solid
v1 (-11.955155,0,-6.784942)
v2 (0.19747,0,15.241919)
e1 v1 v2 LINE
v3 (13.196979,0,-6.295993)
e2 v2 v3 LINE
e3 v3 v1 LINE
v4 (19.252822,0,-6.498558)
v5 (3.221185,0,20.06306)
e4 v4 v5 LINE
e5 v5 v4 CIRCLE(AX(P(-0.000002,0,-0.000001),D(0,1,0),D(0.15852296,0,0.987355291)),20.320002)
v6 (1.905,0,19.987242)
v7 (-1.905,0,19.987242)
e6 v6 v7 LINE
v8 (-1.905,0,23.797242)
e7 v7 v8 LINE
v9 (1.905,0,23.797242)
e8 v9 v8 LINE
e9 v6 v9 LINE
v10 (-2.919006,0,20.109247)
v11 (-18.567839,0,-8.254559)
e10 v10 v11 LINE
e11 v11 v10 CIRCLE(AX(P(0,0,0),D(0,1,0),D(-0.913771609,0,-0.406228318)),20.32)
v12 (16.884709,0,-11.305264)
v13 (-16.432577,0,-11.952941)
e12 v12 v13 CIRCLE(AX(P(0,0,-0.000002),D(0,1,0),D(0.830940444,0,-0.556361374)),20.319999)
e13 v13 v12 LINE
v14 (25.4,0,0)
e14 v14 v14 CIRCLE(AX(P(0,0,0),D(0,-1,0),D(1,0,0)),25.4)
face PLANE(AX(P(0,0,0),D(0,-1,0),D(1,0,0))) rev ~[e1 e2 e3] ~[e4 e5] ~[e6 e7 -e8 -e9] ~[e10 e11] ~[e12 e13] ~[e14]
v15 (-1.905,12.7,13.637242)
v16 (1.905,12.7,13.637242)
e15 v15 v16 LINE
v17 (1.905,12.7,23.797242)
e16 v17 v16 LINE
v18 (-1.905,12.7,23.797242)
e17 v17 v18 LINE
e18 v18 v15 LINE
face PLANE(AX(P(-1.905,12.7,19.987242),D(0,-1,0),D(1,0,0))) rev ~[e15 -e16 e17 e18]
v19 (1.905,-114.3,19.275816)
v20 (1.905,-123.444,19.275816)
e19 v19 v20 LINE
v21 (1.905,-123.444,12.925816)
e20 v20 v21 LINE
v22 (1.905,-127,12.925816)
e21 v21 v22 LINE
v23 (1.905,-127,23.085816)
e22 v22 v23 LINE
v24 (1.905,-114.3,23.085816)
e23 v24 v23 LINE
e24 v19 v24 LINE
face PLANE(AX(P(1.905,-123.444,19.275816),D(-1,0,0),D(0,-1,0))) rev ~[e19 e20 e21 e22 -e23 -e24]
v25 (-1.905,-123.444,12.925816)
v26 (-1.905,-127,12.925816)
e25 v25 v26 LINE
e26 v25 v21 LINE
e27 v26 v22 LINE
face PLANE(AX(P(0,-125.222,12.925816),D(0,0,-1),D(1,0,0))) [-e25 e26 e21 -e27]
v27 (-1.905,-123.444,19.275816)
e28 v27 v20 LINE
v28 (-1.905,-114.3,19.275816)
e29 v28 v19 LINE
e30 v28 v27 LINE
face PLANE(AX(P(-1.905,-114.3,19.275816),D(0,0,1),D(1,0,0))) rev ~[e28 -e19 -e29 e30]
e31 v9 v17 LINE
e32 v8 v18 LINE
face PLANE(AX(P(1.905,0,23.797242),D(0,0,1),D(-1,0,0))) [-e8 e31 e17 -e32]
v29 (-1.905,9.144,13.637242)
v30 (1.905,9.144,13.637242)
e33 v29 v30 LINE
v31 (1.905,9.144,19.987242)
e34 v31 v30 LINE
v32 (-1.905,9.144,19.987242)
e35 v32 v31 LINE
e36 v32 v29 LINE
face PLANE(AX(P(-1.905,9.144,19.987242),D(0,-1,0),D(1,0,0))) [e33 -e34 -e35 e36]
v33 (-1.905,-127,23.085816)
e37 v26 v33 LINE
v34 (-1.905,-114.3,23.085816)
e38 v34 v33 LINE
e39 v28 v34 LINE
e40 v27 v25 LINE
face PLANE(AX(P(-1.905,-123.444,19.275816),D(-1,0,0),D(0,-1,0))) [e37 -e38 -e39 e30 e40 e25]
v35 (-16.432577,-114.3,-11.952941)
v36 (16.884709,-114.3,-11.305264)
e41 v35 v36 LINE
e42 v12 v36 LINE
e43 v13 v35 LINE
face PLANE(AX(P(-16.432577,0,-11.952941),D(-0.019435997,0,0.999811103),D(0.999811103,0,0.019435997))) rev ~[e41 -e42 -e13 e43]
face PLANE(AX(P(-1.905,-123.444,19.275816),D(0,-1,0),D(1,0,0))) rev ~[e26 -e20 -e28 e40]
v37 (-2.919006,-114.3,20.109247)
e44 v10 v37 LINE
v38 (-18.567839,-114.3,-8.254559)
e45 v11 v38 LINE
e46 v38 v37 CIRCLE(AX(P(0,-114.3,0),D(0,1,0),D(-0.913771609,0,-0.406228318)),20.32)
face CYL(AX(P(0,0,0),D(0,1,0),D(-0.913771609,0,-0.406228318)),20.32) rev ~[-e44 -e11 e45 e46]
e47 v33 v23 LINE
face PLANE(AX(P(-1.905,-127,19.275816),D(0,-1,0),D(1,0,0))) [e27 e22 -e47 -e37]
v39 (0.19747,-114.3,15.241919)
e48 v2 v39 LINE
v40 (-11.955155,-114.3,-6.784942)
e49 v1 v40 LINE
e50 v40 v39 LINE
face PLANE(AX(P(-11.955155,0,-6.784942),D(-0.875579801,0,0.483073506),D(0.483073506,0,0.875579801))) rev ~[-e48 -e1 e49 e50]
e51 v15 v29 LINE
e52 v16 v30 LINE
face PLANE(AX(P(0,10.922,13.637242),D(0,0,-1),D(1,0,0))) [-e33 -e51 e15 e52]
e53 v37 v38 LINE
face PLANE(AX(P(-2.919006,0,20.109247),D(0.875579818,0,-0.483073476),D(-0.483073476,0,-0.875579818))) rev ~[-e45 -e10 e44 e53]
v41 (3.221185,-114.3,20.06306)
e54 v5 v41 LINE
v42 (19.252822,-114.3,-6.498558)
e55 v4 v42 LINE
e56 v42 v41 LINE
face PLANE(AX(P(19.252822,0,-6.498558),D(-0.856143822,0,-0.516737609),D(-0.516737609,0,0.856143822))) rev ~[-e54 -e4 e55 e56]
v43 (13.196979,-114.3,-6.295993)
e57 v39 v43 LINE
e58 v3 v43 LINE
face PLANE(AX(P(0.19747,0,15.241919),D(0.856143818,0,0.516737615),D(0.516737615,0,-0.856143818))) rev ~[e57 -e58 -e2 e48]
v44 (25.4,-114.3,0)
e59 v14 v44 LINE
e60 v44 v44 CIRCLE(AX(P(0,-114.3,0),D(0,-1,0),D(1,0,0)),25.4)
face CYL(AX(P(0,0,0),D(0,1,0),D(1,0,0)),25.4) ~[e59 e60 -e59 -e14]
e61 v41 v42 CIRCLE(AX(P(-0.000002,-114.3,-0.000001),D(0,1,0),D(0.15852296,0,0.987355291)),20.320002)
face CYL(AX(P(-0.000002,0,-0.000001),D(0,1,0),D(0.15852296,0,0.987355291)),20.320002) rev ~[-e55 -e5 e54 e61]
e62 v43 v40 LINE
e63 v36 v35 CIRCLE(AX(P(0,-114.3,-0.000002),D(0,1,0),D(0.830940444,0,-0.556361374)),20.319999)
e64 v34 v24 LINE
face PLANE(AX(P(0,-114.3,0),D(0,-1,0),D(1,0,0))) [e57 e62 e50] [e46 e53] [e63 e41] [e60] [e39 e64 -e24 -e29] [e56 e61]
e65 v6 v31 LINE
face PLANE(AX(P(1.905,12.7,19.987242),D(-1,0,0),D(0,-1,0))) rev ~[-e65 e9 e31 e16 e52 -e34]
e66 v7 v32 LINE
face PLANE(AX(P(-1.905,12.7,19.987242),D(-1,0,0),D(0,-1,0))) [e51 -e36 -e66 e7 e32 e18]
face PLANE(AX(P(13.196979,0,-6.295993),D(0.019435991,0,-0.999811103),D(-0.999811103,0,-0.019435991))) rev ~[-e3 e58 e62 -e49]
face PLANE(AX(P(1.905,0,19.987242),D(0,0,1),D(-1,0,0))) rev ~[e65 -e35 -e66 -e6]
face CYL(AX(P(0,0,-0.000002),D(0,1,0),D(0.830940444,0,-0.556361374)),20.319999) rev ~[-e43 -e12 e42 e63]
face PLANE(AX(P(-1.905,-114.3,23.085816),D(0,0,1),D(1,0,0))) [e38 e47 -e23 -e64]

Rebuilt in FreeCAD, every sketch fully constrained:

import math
import FreeCAD as App
import Part
import Sketcher
from FreeCAD import Vector
Q = App.Units.Quantity


def add_polygon(sketch, points):
    """Adds a closed chain of lines whose ends are joined by coincident constraints."""
    first, n = sketch.GeometryCount, len(points)
    for a, b in zip(points, points[1:] + points[:1]):
        sketch.addGeometry(Part.LineSegment(App.Vector(*a, 0), App.Vector(*b, 0)), False)
    for i in range(n):
        sketch.addConstraint(Sketcher.Constraint("Coincident", first + i, 2, first + (i + 1) % n, 1))

doc = App.newDocument("Part")
body = doc.addObject("PartDesign::Body", "Body")

sketch1 = body.newObject("Sketcher::SketchObject", "Sketch")
sketch1.AttachmentSupport = (doc.getObject("XZ_Plane"), [""])
sketch1.MapMode = "FlatFace"
sketch1.addGeometry(Part.Circle(Vector(0, 0, 0), Vector(0, 0, 1), 25), False)
sketch1.addGeometry(Part.LineSegment(Vector(-16, -12, 0), Vector(17, -11, 0)), False)
sketch1.addGeometry(Part.ArcOfCircle(Part.Circle(Vector(0, 0, 0), Vector(0, 0, 1), 20), math.radians(-144), math.radians(-34)), False)
sketch1.addGeometry(Part.LineSegment(Vector(-3, 20, 0), Vector(-19, -8, 0)), False)
sketch1.addGeometry(Part.ArcOfCircle(Part.Circle(Vector(0, 0, 0), Vector(0, 0, 1), 20), math.radians(98), math.radians(204)), False)
add_polygon(sketch1, [(-12, -7), (0, 15), (13, -6)])
sketch1.addGeometry(Part.LineSegment(Vector(19, -6, 0), Vector(3, 20, 0)), False)
sketch1.addGeometry(Part.ArcOfCircle(Part.Circle(Vector(0, 0, 0), Vector(0, 0, 1), 20), math.radians(-19), math.radians(81)), False)
sketch1.addConstraint([
    Sketcher.Constraint("Coincident", 1, 1, 2, 1),
    Sketcher.Constraint("Coincident", 2, 2, 1, 2),
    Sketcher.Constraint("Coincident", 3, 1, 4, 1),
    Sketcher.Constraint("Coincident", 4, 2, 3, 2),
    Sketcher.Constraint("Coincident", 8, 1, 9, 1),
    Sketcher.Constraint("Coincident", 9, 2, 8, 2),
    Sketcher.Constraint("Coincident", 0, 3, -1, 1),
    Sketcher.Constraint("Coincident", 2, 3, -1, 1),
    Sketcher.Constraint("Coincident", 4, 3, -1, 1),
    Sketcher.Constraint("Coincident", 9, 3, -1, 1),
    Sketcher.Constraint("Equal", 2, 4),
    Sketcher.Constraint("Equal", 4, 9),
    Sketcher.Constraint("Parallel", 3, 5),
    Sketcher.Constraint("Parallel", 1, 7),
    Sketcher.Constraint("Parallel", 6, 8),
    Sketcher.Constraint("Equal", 5, 6),
    Sketcher.Constraint("Equal", 6, 7),
    Sketcher.Constraint("Diameter", 0, Q("2 in")),
    Sketcher.Constraint("Radius", 2, Q("0.8 in")),
    Sketcher.Constraint("DistanceY", 1, 1, 7, 2, 5.167999),
    Sketcher.Constraint("Distance", 1, 33.323581),
    Sketcher.Constraint("DistanceY", 1, 1, -1, 1, 11.952941),
    Sketcher.Constraint("DistanceX", 4, 2, -1, 1, 18.567839),
    Sketcher.Constraint("DistanceX", -1, 1, 5, 2, 0.19747),
    Sketcher.Constraint("DistanceY", -1, 1, 5, 2, 15.241919),
    Sketcher.Constraint("DistanceX", -1, 1, 8, 1, 19.252822),
])
pad1 = body.newObject("PartDesign::Pad", "Pad")
pad1.Profile = sketch1
pad1.Length = Q("4.5 in")

sketch2 = body.newObject("Sketcher::SketchObject", "Sketch001")
sketch2.AttachmentSupport = (doc.getObject("XZ_Plane"), [""])
sketch2.MapMode = "FlatFace"
add_polygon(sketch2, [(1.9, 23.8), (1.9, 20), (-1.9, 20), (-1.9, 23.8)])
sketch2.addConstraint([
    Sketcher.Constraint("Vertical", 0),
    Sketcher.Constraint("Horizontal", 1),
    Sketcher.Constraint("Vertical", 2),
    Sketcher.Constraint("Horizontal", 3),
    Sketcher.Constraint("Equal", 3, 0),
    Sketcher.Constraint("DistanceX", 1, 2, 1, 1, Q("0.15 in")),
    Sketcher.Constraint("DistanceX", -1, 1, 0, 2, Q("0.075 in")),
    Sketcher.Constraint("DistanceY", -1, 1, 0, 2, 19.987242),
])
pad2 = body.newObject("PartDesign::Pad", "Pad001")
pad2.Profile = sketch2
pad2.Length = Q("0.5 in")
pad2.Reversed = True

sketch3 = body.newObject("Sketcher::SketchObject", "Sketch002")
sketch3.AttachmentSupport = (doc.getObject("XZ_Plane"), [""])
sketch3.MapMode = "FlatFace"
sketch3.AttachmentOffset = App.Placement(Vector(0, 0, 4.5 * 25.4), App.Rotation())
add_polygon(sketch3, [(-1.9, 23.1), (-1.9, 19.3), (1.9, 19.3), (1.9, 23.1)])
sketch3.addConstraint([
    Sketcher.Constraint("Vertical", 0),
    Sketcher.Constraint("Horizontal", 1),
    Sketcher.Constraint("Vertical", 2),
    Sketcher.Constraint("Horizontal", 3),
    Sketcher.Constraint("Equal", 3, 0),
    Sketcher.Constraint("DistanceX", 1, 1, 1, 2, Q("0.15 in")),
    Sketcher.Constraint("DistanceX", 0, 2, -1, 1, Q("0.075 in")),
    Sketcher.Constraint("DistanceY", -1, 1, 0, 2, 19.275816),
])
pad3 = body.newObject("PartDesign::Pad", "Pad002")
pad3.Profile = sketch3
pad3.Length = Q("0.5 in")

sketch4 = body.newObject("Sketcher::SketchObject", "Sketch003")
sketch4.AttachmentSupport = (doc.getObject("XY_Plane"), [""])
sketch4.MapMode = "FlatFace"
sketch4.AttachmentOffset = App.Placement(Vector(0, 0, 19.987242), App.Rotation())
add_polygon(sketch4, [(-1.9, 9.1), (-1.9, 12.7), (1.9, 12.7), (1.9, 9.1)])
sketch4.addConstraint([
    Sketcher.Constraint("Vertical", 0),
    Sketcher.Constraint("Horizontal", 1),
    Sketcher.Constraint("Vertical", 2),
    Sketcher.Constraint("Horizontal", 3),
    Sketcher.Constraint("DistanceX", 1, 1, 1, 2, Q("0.15 in")),
    Sketcher.Constraint("DistanceY", 0, 1, 0, 2, Q("0.14 in")),
    Sketcher.Constraint("DistanceY", -1, 1, 0, 2, Q("0.5 in")),
    Sketcher.Constraint("DistanceX", 0, 2, -1, 1, Q("0.075 in")),
])
pad4 = body.newObject("PartDesign::Pad", "Pad003")
pad4.Profile = sketch4
pad4.Length = Q("0.25 in")
pad4.Reversed = True

sketch5 = body.newObject("Sketcher::SketchObject", "Sketch004")
sketch5.AttachmentSupport = (doc.getObject("XY_Plane"), [""])
sketch5.MapMode = "FlatFace"
sketch5.AttachmentOffset = App.Placement(Vector(0, 0, 19.275816), App.Rotation())
add_polygon(sketch5, [(-1.9, -127), (-1.9, -123.4), (1.9, -123.4), (1.9, -127)])
sketch5.addConstraint([
    Sketcher.Constraint("Vertical", 0),
    Sketcher.Constraint("Horizontal", 1),
    Sketcher.Constraint("Vertical", 2),
    Sketcher.Constraint("Horizontal", 3),
    Sketcher.Constraint("DistanceY", 2, 2, -1, 1, Q("5 in")),
    Sketcher.Constraint("DistanceX", 1, 1, 1, 2, Q("0.15 in")),
    Sketcher.Constraint("DistanceY", 0, 1, 0, 2, Q("0.14 in")),
    Sketcher.Constraint("DistanceX", 0, 2, -1, 1, Q("0.075 in")),
])
pad5 = body.newObject("PartDesign::Pad", "Pad004")
pad5.Profile = sketch5
pad5.Length = Q("0.25 in")
pad5.Reversed = True

doc.recompute()
